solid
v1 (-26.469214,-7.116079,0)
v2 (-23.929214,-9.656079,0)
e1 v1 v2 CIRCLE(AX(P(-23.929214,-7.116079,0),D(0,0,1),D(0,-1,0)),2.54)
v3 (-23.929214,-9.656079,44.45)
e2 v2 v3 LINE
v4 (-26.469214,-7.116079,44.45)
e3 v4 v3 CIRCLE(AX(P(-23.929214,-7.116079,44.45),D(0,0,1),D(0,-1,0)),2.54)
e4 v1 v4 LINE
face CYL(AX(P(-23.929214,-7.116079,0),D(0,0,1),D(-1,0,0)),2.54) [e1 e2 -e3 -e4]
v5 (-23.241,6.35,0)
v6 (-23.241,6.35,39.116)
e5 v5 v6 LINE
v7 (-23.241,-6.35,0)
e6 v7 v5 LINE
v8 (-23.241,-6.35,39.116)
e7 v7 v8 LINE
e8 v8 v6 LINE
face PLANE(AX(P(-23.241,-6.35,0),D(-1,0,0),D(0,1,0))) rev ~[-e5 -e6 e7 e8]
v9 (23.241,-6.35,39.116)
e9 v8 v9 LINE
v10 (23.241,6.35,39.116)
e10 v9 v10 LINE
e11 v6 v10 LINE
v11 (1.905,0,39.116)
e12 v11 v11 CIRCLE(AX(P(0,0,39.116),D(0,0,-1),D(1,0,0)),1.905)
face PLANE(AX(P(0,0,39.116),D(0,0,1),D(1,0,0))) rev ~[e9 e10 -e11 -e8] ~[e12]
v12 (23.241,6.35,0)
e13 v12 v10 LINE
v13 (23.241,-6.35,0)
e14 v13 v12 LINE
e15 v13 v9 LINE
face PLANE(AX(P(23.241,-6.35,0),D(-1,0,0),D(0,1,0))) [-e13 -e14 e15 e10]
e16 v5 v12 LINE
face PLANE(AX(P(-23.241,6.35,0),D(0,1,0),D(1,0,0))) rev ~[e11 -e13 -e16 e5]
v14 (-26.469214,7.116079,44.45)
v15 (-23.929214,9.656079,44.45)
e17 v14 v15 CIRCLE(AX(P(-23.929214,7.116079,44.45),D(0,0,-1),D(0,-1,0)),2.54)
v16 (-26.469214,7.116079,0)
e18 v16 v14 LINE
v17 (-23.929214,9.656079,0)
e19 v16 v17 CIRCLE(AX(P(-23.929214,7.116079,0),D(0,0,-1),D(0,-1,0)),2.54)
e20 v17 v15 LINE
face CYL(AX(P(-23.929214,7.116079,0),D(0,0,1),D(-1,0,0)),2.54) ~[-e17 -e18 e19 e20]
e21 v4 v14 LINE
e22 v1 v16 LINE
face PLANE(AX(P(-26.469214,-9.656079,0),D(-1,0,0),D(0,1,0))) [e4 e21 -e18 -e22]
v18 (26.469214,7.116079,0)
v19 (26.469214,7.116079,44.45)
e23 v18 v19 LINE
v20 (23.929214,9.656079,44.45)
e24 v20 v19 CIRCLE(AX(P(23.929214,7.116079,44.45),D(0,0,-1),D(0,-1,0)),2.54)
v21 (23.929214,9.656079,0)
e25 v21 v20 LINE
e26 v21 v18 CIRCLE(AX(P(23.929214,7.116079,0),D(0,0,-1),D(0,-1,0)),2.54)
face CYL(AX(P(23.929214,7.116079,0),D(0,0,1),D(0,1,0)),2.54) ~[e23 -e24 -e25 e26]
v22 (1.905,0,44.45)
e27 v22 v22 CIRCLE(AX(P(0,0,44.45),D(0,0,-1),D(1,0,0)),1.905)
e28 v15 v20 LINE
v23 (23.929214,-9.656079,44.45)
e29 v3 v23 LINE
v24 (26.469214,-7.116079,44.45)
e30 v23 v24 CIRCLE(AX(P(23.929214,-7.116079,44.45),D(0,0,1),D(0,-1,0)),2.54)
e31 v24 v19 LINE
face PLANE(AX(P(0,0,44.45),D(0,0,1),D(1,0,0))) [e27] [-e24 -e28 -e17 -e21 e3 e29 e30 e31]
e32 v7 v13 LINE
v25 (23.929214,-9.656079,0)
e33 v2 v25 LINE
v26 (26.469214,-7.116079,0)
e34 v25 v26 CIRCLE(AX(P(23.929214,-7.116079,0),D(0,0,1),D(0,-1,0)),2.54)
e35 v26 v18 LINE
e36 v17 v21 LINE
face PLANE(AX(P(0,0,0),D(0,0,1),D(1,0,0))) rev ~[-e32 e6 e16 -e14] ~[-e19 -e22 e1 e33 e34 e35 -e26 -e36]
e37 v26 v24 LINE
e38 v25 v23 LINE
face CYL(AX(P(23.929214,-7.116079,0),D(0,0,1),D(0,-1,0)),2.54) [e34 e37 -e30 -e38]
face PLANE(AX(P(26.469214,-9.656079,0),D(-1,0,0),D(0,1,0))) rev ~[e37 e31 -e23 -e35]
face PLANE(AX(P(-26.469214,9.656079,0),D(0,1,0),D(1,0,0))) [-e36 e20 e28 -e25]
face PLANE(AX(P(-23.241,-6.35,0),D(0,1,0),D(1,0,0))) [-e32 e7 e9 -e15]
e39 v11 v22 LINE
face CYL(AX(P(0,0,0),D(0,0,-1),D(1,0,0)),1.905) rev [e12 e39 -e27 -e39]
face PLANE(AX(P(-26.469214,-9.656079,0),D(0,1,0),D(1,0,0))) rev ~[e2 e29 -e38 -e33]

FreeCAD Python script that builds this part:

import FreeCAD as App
import Part
import Sketcher

V = App.Vector
Q = App.Units.Quantity


def edges_at(feature, points):
    """Names of the edges that pass closest to the given points."""
    edges = feature.Shape.Edges
    near = lambda p: min(range(len(edges)), key=lambda i: edges[i].distToShape(Part.Vertex(*p))[0])
    return sorted({f"Edge{near(p) + 1}" for p in points})


def add_polygon(sketch, points):
    """Adds a closed chain of lines whose ends are joined by coincident constraints."""
    first, n = sketch.GeometryCount, len(points)
    for a, b in zip(points, points[1:] + points[:1]):
        sketch.addGeometry(Part.LineSegment(App.Vector(*a, 0), App.Vector(*b, 0)), False)
    for i in range(n):
        sketch.addConstraint(Sketcher.Constraint("Coincident", first + i, 2, first + (i + 1) % n, 1))

doc = App.newDocument("Part")
body = doc.addObject("PartDesign::Body", "Body")

# Sketch on XY plane
sketch1 = body.newObject("Sketcher::SketchObject", "Sketch")
sketch1.AttachmentSupport = (doc.getObject("XY_Plane"), [""])
sketch1.MapMode = "FlatFace"
add_polygon(sketch1, [(-26, 10), (-26, -10), (26, -10), (26, 10)])  # lines 0-3
sketch1.addConstraint([
    Sketcher.Constraint("Vertical", 0),
    Sketcher.Constraint("Horizontal", 1),
    Sketcher.Constraint("Vertical", 2),
    Sketcher.Constraint("Horizontal", 3),
    Sketcher.Constraint("Symmetric", 0, 2, 2, 2, -1, 1),
    Sketcher.Constraint("DistanceX", 1, 1, 1, 2, Q("52.938428 mm")),
    Sketcher.Constraint("DistanceY", 0, 2, 0, 1, Q("19.312158 mm")),
])
pad1 = body.newObject("PartDesign::Pad", "Pad")
pad1.Profile = sketch1
pad1.Length = Q("1.75 in")

# Sketch on XY plane
sketch2 = body.newObject("Sketcher::SketchObject", "Sketch001")
sketch2.AttachmentSupport = (doc.getObject("XY_Plane"), [""])
sketch2.MapMode = "FlatFace"
add_polygon(sketch2, [(-23, 6), (-23, -6), (23, -6), (23, 6)])  # lines 0-3
sketch2.addConstraint([
    Sketcher.Constraint("Vertical", 0),
    Sketcher.Constraint("Horizontal", 1),
    Sketcher.Constraint("Vertical", 2),
    Sketcher.Constraint("Horizontal", 3),
    Sketcher.Constraint("Symmetric", 0, 2, 2, 2, -1, 1),
    Sketcher.Constraint("DistanceY", 0, 2, 0, 1, Q("0.5 in")),
    Sketcher.Constraint("DistanceX", 1, 1, 1, 2, Q("1.83 in")),
])
pocket1 = body.newObject("PartDesign::Pocket", "Pocket")
pocket1.Profile = sketch2
pocket1.Length = Q("1.54 in")
pocket1.Reversed = True

# Sketch on XY plane
sketch3 = body.newObject("Sketcher::SketchObject", "Sketch002")
sketch3.AttachmentSupport = (doc.getObject("XY_Plane"), [""])
sketch3.MapMode = "FlatFace"
sketch3.addGeometry(Part.Circle(V(0, 0, 0), V(0, 0, 1), 1.9), False)
sketch3.addConstraint([
    Sketcher.Constraint("Coincident", 0, 3, -1, 1),
    Sketcher.Constraint("Diameter", 0, Q("0.15 in")),
])
pocket2 = body.newObject("PartDesign::Pocket", "Pocket001")
pocket2.Profile = sketch3
pocket2.Length = Q("2.31 in")
pocket2.Reversed = True
doc.recompute()

fillet = body.newObject("PartDesign::Fillet", "Fillet")
fillet.Base = (pocket2, edges_at(pocket2, [
    (-26.469, 9.656, 22.225),
    (26.469, 9.656, 22.225),
    (-26.469, -9.656, 22.225),
    (26.469, -9.656, 22.225),
]))
fillet.Radius = Q("0.1 in")

doc.recompute()
